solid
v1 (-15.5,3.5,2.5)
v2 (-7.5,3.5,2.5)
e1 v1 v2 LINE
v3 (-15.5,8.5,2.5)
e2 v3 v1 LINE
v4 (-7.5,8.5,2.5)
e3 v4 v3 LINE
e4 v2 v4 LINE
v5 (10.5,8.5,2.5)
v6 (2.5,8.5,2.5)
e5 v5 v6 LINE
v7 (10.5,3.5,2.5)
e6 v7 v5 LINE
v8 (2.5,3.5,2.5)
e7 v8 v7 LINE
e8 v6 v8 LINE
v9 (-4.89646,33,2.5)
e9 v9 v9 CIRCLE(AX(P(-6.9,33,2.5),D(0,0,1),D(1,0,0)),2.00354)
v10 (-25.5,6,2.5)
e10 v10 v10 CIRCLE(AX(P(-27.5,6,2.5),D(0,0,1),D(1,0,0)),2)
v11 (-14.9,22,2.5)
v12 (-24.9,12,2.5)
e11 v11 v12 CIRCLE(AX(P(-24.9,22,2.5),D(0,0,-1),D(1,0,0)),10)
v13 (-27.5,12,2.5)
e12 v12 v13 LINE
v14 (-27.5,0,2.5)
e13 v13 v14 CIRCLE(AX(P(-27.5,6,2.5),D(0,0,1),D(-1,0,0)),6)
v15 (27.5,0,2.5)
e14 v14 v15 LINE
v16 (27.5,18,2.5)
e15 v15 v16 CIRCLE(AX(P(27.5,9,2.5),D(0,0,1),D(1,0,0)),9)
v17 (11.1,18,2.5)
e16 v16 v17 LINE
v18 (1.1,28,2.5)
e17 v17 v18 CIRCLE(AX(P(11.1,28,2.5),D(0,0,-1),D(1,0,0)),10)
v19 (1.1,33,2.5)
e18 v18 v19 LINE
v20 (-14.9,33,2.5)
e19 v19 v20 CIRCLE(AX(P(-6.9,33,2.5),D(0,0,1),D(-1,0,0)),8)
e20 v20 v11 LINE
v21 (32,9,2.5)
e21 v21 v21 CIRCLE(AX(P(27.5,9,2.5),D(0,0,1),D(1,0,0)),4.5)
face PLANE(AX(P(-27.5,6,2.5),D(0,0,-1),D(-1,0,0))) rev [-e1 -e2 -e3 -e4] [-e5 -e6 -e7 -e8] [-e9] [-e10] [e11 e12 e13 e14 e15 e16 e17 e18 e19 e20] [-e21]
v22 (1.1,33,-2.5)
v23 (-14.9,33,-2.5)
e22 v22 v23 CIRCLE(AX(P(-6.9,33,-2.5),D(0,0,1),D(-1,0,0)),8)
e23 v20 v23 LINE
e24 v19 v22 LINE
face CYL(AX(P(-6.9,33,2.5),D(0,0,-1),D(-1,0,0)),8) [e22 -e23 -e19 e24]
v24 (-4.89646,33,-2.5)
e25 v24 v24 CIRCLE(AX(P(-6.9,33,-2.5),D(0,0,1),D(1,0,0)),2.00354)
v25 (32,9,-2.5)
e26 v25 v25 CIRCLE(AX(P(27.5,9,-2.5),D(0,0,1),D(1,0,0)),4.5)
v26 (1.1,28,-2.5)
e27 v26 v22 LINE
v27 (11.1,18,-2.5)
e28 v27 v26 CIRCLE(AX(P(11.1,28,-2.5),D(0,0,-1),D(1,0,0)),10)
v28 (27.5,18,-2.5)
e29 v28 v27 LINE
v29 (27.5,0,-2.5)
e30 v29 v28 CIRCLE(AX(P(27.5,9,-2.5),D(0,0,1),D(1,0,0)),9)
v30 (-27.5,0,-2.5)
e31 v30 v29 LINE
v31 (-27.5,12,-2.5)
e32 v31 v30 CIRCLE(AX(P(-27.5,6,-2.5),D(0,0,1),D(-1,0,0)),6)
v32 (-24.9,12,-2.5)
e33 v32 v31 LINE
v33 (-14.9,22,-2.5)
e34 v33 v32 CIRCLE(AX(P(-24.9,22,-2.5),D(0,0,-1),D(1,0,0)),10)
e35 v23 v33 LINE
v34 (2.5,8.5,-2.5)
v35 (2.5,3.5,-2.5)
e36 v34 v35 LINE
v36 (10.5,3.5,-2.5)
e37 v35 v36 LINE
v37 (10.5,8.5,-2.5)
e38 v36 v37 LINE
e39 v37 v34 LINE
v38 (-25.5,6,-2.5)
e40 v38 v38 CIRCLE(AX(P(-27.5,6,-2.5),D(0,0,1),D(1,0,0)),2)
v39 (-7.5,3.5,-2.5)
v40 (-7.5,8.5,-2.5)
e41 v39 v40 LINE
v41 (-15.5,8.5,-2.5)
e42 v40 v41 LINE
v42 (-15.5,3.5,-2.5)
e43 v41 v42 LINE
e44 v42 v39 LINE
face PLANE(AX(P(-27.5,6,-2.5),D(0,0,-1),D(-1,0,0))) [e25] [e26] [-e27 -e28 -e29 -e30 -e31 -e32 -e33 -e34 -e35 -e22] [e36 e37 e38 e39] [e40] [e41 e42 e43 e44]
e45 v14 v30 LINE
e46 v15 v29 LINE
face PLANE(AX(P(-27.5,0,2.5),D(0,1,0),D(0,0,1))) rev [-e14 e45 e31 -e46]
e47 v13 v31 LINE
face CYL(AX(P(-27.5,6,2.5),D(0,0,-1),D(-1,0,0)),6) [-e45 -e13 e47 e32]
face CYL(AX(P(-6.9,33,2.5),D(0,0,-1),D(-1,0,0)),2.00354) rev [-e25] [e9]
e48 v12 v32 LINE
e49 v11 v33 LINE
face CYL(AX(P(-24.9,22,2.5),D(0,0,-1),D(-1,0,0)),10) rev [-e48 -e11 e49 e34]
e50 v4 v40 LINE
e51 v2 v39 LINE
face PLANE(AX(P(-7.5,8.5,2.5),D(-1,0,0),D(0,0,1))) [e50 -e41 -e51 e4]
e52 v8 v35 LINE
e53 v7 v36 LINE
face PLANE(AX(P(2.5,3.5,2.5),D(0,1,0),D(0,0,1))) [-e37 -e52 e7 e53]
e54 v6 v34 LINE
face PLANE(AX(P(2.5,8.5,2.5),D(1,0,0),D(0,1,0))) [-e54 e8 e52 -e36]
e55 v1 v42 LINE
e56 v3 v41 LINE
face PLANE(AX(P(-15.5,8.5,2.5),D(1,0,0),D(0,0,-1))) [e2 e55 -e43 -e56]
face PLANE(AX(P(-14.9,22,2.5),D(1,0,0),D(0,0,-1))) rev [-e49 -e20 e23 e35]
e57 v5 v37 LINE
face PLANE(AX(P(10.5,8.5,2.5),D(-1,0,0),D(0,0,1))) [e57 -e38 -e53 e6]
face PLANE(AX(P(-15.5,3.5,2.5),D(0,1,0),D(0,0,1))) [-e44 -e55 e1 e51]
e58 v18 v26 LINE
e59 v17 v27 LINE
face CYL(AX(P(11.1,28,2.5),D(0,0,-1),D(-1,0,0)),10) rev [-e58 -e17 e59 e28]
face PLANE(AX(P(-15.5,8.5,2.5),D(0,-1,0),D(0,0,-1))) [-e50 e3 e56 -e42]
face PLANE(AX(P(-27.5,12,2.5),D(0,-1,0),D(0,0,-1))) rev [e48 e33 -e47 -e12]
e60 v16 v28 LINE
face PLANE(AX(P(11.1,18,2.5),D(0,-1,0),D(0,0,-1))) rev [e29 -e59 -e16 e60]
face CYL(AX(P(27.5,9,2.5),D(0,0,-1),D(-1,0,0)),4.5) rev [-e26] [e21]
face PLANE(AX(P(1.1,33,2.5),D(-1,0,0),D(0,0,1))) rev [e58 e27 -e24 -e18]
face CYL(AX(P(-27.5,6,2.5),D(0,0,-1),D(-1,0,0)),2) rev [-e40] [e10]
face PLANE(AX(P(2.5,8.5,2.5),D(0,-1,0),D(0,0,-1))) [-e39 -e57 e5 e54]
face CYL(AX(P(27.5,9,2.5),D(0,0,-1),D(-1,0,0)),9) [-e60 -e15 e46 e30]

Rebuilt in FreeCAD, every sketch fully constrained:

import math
import FreeCAD as App
import Part
import Sketcher
from FreeCAD import Vector

doc = App.newDocument("Part")
body = doc.addObject("PartDesign::Body", "Body")

# Sketch on XY plane
sketch1 = doc.addObject("Sketcher::SketchObject", "Sketch")
body.addObject(sketch1)
sketch1.AttachmentSupport = (doc.XY_Plane, [""])
sketch1.MapMode = "FlatFace"
sketch1.addGeometry(Part.LineSegment(Vector(-27.5, 0, 0), Vector(27.5, 0, 0)), False)
sketch1.addGeometry(Part.ArcOfCircle(Part.Circle(Vector(27.5, 9, 0), Vector(0, 0, 1), 9), math.radians(-90), math.radians(90)), False)
sketch1.addGeometry(Part.LineSegment(Vector(27.5, 18, 0), Vector(11.1, 18, 0)), False)
sketch1.addGeometry(Part.ArcOfCircle(Part.Circle(Vector(11.1, 28, 0), Vector(0, 0, 1), 10), math.radians(180), math.radians(270)), False)
sketch1.addGeometry(Part.LineSegment(Vector(1.1, 28, 0), Vector(1.1, 33, 0)), False)
sketch1.addGeometry(Part.ArcOfCircle(Part.Circle(Vector(-6.9, 33, 0), Vector(0, 0, 1), 8), math.radians(0), math.radians(180)), False)
sketch1.addGeometry(Part.LineSegment(Vector(-14.9, 33, 0), Vector(-14.9, 22, 0)), False)
sketch1.addGeometry(Part.ArcOfCircle(Part.Circle(Vector(-24.9, 22, 0), Vector(0, 0, 1), 10), math.radians(-90), math.radians(0)), False)
sketch1.addGeometry(Part.LineSegment(Vector(-24.9, 12, 0), Vector(-27.5, 12, 0)), False)
sketch1.addGeometry(Part.ArcOfCircle(Part.Circle(Vector(-27.5, 6, 0), Vector(0, 0, 1), 6), math.radians(90), math.radians(270)), False)
sketch1.addGeometry(Part.Circle(Vector(-27.5, 6, 0), Vector(0, 0, 1), 2), False)
sketch1.addGeometry(Part.LineSegment(Vector(-7.5, 3.5, 0), Vector(-15.5, 3.5, 0)), False)
sketch1.addGeometry(Part.LineSegment(Vector(-15.5, 3.5, 0), Vector(-15.5, 8.5, 0)), False)
sketch1.addGeometry(Part.LineSegment(Vector(-15.5, 8.5, 0), Vector(-7.5, 8.5, 0)), False)
sketch1.addGeometry(Part.LineSegment(Vector(-7.5, 8.5, 0), Vector(-7.5, 3.5, 0)), False)
sketch1.addGeometry(Part.LineSegment(Vector(10.5, 3.5, 0), Vector(2.5, 3.5, 0)), False)
sketch1.addGeometry(Part.LineSegment(Vector(2.5, 3.5, 0), Vector(2.5, 8.5, 0)), False)
sketch1.addGeometry(Part.LineSegment(Vector(2.5, 8.5, 0), Vector(10.5, 8.5, 0)), False)
sketch1.addGeometry(Part.LineSegment(Vector(10.5, 8.5, 0), Vector(10.5, 3.5, 0)), False)
sketch1.addGeometry(Part.Circle(Vector(27.5, 9, 0), Vector(0, 0, 1), 4.5), False)
sketch1.addGeometry(Part.Circle(Vector(-6.9, 33, 0), Vector(0, 0, 1), 2), False)
sketch1.addConstraint(Sketcher.Constraint("Tangent", 0, 2, 1, 1))
sketch1.addConstraint(Sketcher.Constraint("Tangent", 1, 2, 2, 1))
sketch1.addConstraint(Sketcher.Constraint("Tangent", 2, 2, 3, 2))
sketch1.addConstraint(Sketcher.Constraint("Tangent", 3, 1, 4, 1))
sketch1.addConstraint(Sketcher.Constraint("Tangent", 4, 2, 5, 1))
sketch1.addConstraint(Sketcher.Constraint("Tangent", 5, 2, 6, 1))
sketch1.addConstraint(Sketcher.Constraint("Tangent", 6, 2, 7, 2))
sketch1.addConstraint(Sketcher.Constraint("Tangent", 7, 1, 8, 1))
sketch1.addConstraint(Sketcher.Constraint("Tangent", 8, 2, 9, 1))
sketch1.addConstraint(Sketcher.Constraint("Tangent", 9, 2, 0, 1))
sketch1.addConstraint(Sketcher.Constraint("Coincident", 11, 2, 12, 1))
sketch1.addConstraint(Sketcher.Constraint("Coincident", 12, 2, 13, 1))
sketch1.addConstraint(Sketcher.Constraint("Coincident", 13, 2, 14, 1))
sketch1.addConstraint(Sketcher.Constraint("Coincident", 14, 2, 11, 1))
sketch1.addConstraint(Sketcher.Constraint("Coincident", 15, 2, 16, 1))
sketch1.addConstraint(Sketcher.Constraint("Coincident", 16, 2, 17, 1))
sketch1.addConstraint(Sketcher.Constraint("Coincident", 17, 2, 18, 1))
sketch1.addConstraint(Sketcher.Constraint("Coincident", 18, 2, 15, 1))
sketch1.addConstraint(Sketcher.Constraint("Horizontal", 0))
sketch1.addConstraint(Sketcher.Constraint("Horizontal", 2))
sketch1.addConstraint(Sketcher.Constraint("Vertical", 4))
sketch1.addConstraint(Sketcher.Constraint("Vertical", 6))
sketch1.addConstraint(Sketcher.Constraint("Horizontal", 8))
sketch1.addConstraint(Sketcher.Constraint("Horizontal", 11))
sketch1.addConstraint(Sketcher.Constraint("Vertical", 12))
sketch1.addConstraint(Sketcher.Constraint("Horizontal", 13))
sketch1.addConstraint(Sketcher.Constraint("Vertical", 14))
sketch1.addConstraint(Sketcher.Constraint("Horizontal", 15))
sketch1.addConstraint(Sketcher.Constraint("Vertical", 16))
sketch1.addConstraint(Sketcher.Constraint("Horizontal", 17))
sketch1.addConstraint(Sketcher.Constraint("Vertical", 18))
sketch1.addConstraint(Sketcher.Constraint("Coincident", 10, 3, 9, 3))
sketch1.addConstraint(Sketcher.Constraint("Coincident", 19, 3, 1, 3))
sketch1.addConstraint(Sketcher.Constraint("Coincident", 20, 3, 5, 3))
sketch1.addConstraint(Sketcher.Constraint("Equal", 3, 7))
sketch1.addConstraint(Sketcher.Constraint("Symmetric", 0, 2, 9, 2, -1, 1))
sketch1.addConstraint(Sketcher.Constraint("Horizontal", 14, 2, 15, 2))
sketch1.addConstraint(Sketcher.Constraint("Horizontal", 13, 2, 16, 2))
sketch1.addConstraint(Sketcher.Constraint("Equal", 13, 15))
sketch1.addConstraint(Sketcher.Constraint("Equal", 4, 12))
sketch1.addConstraint(Sketcher.Constraint("Diameter", 10, 4.0))
sketch1.addConstraint(Sketcher.Constraint("Diameter", 19, 9.0))
sketch1.addConstraint(Sketcher.Constraint("Radius", 1, 9.0))
sketch1.addConstraint(Sketcher.Constraint("Radius", 3, 10.0))
sketch1.addConstraint(Sketcher.Constraint("Radius", 5, 8.0))
sketch1.addConstraint(Sketcher.Constraint("Radius", 9, 6.0))
sketch1.addConstraint(Sketcher.Constraint("DistanceX", 0, 1, 0, 2, 55.0))
sketch1.addConstraint(Sketcher.Constraint("DistanceX", 11, 2, 11, 1, 8.0))
sketch1.addConstraint(Sketcher.Constraint("DistanceY", 4, 1, 4, 2, 5.0))
sketch1.addConstraint(Sketcher.Constraint("DistanceX", 2, 2, 2, 1, 16.4))
sketch1.addConstraint(Sketcher.Constraint("DistanceX", 9, 3, 11, 2, 12.0))
sketch1.addConstraint(Sketcher.Constraint("DistanceX", 14, 2, 15, 2, 10.0))
sketch1.addConstraint(Sketcher.Constraint("DistanceY", -1, 1, 11, 2, 3.5))
sketch1.addConstraint(Sketcher.Constraint("Diameter", 20, 4.007079))
pad1 = doc.addObject("PartDesign::Pad", "Pad")
body.addObject(pad1)
pad1.Profile = sketch1
pad1.Length = 5
pad1.Midplane = True

doc.recompute()
